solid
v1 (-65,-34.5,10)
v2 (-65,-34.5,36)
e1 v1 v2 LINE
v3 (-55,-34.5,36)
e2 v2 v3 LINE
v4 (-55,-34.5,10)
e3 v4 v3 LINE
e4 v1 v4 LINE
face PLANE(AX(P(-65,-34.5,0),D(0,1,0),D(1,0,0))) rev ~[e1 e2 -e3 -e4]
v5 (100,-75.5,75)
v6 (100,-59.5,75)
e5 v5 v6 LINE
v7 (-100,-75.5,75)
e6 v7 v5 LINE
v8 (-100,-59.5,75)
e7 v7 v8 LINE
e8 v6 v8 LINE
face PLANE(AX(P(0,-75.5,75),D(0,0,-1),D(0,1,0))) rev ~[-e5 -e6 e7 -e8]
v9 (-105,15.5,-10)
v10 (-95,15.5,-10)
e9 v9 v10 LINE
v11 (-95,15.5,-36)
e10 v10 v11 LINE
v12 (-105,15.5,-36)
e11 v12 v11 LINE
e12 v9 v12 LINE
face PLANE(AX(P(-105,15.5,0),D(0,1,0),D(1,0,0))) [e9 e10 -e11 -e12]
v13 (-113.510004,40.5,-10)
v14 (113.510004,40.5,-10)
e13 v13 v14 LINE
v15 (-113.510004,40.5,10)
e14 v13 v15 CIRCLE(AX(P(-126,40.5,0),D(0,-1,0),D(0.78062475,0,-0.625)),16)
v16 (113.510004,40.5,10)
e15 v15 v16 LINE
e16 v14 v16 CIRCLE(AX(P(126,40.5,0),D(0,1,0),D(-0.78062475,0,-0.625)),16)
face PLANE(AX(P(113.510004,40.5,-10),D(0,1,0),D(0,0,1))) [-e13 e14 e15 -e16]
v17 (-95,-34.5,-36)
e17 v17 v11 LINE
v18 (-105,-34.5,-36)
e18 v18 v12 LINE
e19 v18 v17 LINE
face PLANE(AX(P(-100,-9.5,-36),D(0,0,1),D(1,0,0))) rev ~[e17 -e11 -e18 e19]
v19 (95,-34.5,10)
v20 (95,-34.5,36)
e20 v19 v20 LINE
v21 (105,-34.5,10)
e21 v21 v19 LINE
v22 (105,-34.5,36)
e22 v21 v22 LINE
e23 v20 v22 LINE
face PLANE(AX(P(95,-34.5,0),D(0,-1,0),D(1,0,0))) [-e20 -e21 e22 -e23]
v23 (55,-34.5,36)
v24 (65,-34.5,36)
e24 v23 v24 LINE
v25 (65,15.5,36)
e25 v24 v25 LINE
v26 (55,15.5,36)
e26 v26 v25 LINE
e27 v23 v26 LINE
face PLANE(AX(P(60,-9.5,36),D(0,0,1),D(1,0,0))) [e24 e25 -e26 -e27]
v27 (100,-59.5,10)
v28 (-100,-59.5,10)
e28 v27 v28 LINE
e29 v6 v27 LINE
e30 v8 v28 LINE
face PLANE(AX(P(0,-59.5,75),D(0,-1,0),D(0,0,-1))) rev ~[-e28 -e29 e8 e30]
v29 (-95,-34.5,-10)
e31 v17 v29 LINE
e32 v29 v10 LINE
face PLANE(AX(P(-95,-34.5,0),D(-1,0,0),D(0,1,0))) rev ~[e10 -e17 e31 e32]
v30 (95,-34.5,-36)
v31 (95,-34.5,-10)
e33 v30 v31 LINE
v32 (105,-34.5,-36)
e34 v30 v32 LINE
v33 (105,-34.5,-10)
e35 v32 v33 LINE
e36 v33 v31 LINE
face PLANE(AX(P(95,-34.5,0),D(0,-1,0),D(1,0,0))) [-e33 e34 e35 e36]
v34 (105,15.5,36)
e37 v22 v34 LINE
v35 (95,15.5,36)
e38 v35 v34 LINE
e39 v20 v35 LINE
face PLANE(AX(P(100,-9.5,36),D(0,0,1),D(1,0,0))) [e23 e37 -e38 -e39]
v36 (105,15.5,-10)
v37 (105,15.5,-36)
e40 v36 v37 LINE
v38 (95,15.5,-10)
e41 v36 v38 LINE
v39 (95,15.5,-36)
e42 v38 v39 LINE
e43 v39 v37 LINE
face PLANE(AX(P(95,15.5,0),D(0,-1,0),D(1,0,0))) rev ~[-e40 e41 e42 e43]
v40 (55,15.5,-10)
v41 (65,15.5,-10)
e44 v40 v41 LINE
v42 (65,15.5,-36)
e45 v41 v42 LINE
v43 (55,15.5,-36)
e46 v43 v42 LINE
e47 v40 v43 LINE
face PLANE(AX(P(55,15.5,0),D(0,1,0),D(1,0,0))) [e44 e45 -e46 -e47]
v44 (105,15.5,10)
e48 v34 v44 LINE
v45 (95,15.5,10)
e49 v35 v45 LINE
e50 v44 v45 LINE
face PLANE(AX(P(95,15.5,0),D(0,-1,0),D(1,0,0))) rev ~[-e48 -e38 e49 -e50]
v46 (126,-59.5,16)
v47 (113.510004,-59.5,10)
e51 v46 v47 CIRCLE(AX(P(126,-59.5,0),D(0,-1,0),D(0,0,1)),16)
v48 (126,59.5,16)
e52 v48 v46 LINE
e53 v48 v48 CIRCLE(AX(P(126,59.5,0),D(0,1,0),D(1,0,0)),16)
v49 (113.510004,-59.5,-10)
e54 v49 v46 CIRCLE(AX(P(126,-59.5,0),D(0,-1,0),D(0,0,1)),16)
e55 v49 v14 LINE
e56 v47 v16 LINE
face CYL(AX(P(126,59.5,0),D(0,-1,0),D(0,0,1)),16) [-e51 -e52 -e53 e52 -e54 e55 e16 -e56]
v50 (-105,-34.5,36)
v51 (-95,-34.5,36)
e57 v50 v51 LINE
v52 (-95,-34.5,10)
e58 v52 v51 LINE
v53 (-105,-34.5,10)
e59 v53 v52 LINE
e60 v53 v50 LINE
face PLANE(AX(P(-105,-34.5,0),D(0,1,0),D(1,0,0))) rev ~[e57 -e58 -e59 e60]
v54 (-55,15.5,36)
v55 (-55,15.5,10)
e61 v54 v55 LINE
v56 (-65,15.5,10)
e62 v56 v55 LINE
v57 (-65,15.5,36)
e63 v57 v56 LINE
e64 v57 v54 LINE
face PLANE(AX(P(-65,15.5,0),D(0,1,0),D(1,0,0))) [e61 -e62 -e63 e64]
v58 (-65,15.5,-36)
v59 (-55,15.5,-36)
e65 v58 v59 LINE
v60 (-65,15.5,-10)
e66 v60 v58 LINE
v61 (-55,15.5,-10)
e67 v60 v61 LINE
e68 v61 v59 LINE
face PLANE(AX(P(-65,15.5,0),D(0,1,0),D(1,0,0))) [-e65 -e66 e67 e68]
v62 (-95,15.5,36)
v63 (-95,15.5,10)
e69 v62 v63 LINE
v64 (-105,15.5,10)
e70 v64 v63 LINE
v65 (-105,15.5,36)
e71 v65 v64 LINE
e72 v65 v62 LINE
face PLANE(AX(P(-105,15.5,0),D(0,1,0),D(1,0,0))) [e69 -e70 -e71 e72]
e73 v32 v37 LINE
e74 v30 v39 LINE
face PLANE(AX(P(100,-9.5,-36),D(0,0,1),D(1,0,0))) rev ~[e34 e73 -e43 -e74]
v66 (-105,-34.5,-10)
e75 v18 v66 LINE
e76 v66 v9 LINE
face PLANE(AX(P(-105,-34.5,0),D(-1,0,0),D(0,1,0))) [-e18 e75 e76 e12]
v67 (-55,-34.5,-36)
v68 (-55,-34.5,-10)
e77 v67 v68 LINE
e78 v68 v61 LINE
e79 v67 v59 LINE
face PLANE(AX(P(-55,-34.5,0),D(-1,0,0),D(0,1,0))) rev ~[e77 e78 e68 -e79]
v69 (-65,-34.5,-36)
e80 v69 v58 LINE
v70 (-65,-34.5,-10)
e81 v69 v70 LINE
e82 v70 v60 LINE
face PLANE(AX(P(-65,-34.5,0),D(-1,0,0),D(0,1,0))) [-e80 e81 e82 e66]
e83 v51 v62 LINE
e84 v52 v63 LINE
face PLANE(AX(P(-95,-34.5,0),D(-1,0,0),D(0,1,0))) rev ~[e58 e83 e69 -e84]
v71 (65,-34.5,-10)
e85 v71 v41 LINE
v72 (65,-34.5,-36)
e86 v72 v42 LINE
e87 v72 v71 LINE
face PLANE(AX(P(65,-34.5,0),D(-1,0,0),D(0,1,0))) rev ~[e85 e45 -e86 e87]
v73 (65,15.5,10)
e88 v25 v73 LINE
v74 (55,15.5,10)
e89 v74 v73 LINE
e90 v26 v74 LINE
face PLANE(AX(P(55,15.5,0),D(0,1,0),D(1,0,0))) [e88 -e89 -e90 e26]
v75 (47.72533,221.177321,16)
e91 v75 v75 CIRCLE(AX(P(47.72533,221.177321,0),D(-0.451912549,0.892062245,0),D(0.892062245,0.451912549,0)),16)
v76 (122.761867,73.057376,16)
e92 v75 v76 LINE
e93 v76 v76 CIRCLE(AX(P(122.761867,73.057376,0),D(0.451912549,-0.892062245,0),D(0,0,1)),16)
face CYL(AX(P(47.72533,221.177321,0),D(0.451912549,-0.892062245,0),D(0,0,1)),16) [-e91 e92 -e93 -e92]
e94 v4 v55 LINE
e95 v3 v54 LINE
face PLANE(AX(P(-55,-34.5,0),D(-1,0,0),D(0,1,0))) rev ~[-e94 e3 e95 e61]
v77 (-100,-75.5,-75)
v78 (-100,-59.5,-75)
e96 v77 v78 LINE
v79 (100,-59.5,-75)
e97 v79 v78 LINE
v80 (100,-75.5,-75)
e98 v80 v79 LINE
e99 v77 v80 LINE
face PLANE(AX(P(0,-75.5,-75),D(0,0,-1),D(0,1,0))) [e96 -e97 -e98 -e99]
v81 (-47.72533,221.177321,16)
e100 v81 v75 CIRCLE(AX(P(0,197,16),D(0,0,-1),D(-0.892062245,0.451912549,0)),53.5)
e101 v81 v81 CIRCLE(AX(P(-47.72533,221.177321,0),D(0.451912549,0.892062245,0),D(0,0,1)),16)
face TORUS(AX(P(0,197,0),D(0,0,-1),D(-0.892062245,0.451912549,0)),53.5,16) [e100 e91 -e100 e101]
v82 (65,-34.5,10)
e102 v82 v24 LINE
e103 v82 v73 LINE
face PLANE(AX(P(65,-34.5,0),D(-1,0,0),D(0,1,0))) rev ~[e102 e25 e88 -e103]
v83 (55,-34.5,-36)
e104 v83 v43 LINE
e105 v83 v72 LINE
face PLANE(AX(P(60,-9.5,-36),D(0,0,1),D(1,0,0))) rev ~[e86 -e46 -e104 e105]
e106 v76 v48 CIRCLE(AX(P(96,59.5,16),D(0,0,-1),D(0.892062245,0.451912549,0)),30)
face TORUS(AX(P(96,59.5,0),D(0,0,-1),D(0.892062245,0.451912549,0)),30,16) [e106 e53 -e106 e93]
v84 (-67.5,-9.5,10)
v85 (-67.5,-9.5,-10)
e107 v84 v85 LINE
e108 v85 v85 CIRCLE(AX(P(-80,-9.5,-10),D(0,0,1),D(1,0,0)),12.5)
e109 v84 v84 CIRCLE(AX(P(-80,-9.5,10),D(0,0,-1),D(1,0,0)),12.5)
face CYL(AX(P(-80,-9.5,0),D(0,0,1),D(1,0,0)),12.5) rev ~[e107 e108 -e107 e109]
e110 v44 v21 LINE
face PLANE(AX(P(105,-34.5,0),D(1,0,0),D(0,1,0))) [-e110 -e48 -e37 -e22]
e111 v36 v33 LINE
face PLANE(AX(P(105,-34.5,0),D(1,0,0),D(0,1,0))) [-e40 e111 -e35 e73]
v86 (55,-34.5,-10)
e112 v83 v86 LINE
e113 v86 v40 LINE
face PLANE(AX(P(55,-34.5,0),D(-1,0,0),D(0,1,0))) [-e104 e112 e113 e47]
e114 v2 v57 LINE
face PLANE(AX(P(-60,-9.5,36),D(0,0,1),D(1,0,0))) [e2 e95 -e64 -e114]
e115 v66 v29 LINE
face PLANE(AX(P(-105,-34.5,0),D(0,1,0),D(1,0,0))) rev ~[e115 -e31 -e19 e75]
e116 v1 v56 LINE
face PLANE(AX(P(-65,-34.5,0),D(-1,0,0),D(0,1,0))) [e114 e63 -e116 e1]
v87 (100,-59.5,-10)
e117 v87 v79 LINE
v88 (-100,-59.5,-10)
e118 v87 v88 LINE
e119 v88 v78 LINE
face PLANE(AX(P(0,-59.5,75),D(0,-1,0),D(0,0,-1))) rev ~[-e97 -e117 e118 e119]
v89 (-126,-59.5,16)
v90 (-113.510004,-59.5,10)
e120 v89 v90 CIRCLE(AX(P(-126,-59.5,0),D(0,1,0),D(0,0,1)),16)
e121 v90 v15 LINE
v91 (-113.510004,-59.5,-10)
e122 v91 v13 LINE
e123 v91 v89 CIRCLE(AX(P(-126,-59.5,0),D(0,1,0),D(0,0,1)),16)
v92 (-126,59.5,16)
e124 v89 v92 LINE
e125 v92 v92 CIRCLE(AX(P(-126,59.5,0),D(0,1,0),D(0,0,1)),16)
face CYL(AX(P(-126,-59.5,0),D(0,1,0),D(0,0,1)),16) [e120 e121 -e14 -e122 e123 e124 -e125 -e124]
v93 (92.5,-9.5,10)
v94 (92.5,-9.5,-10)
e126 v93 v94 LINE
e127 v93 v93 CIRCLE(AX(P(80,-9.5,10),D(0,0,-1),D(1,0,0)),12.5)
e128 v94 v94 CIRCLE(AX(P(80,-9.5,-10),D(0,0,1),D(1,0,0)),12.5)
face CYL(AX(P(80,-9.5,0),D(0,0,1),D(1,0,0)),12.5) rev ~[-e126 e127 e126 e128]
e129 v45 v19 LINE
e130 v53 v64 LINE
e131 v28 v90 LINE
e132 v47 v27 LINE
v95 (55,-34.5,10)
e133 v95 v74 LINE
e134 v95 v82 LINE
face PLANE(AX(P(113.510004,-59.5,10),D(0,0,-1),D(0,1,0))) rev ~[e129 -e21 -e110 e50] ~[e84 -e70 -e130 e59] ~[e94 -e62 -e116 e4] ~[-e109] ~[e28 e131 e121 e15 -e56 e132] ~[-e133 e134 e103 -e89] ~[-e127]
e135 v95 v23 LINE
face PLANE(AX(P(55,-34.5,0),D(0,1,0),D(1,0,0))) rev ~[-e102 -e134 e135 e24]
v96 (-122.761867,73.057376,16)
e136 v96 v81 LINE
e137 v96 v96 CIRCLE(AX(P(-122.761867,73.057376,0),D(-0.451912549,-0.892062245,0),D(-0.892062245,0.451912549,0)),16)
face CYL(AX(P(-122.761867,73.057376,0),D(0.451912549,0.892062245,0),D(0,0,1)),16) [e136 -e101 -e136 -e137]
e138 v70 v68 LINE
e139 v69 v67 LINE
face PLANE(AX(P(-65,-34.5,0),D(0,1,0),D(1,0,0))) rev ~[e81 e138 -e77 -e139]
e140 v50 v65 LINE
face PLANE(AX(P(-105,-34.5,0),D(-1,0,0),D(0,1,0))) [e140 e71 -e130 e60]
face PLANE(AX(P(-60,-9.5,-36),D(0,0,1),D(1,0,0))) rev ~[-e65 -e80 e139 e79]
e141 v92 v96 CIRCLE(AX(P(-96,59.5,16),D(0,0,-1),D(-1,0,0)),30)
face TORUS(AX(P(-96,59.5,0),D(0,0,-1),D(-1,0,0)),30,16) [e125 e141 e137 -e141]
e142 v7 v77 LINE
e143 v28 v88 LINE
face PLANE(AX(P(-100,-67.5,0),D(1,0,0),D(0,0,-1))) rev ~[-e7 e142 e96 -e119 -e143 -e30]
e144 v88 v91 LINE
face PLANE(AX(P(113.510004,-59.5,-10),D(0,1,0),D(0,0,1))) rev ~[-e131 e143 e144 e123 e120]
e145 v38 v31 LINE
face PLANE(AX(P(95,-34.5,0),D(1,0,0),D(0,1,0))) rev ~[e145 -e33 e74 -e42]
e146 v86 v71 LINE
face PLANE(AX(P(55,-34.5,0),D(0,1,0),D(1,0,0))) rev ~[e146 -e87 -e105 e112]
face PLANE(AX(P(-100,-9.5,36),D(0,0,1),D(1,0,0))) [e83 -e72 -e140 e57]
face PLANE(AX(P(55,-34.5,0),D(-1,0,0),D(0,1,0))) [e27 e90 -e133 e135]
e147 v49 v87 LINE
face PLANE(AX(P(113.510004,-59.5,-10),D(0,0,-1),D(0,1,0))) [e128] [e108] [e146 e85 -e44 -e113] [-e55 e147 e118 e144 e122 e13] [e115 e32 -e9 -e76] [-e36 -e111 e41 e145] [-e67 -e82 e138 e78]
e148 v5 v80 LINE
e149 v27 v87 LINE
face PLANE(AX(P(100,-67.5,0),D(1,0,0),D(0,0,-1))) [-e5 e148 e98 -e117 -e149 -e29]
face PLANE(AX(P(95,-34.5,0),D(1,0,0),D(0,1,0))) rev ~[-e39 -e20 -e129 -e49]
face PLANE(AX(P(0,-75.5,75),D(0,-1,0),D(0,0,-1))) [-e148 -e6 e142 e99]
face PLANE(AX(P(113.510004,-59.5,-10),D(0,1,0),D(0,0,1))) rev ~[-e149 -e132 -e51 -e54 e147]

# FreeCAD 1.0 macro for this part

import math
import FreeCAD as App
import Part
import Sketcher

V = App.Vector
Q = App.Units.Quantity


def add_polygon(sketch, points):
    """Adds a closed chain of lines whose ends are joined by coincident constraints."""
    first, n = sketch.GeometryCount, len(points)
    for a, b in zip(points, points[1:] + points[:1]):
        sketch.addGeometry(Part.LineSegment(App.Vector(*a, 0), App.Vector(*b, 0)), False)
    for i in range(n):
        sketch.addConstraint(Sketcher.Constraint("Coincident", first + i, 2, first + (i + 1) % n, 1))

doc = App.newDocument("Part")
body = doc.addObject("PartDesign::Body", "Body")

# Sketch on XZ plane
sketch1 = body.newObject("Sketcher::SketchObject", "Sketch")
sketch1.AttachmentSupport = (doc.getObject("XZ_Plane"), [""])
sketch1.MapMode = "FlatFace"
sketch1.AttachmentOffset = App.Placement(V(0, 0, 59.5), App.Rotation())
sketch1.addGeometry(Part.Circle(V(-126, 0, 0), V(0, 0, 1), 16), False)
sketch1.addConstraint([
    Sketcher.Constraint("PointOnObject", 0, 3, -1),
    Sketcher.Constraint("Diameter", 0, Q("32 mm")),
    Sketcher.Constraint("DistanceX", 0, 3, -1, 1, Q("126 mm")),
])

# Sketch on XY plane
sketch2 = body.newObject("Sketcher::SketchObject", "Sketch001")
sketch2.AttachmentSupport = (doc.getObject("XY_Plane"), [""])
sketch2.MapMode = "FlatFace"
sketch2.addGeometry([
    Part.LineSegment(V(-126, -60, 0), V(-126, 60, 0)),  # 0
    Part.ArcOfCircle(Part.Circle(V(-96, 60, 0), V(0, 0, 1), 30), math.radians(153), math.radians(180)),  # 1
    Part.LineSegment(V(-123, 73, 0), V(-48, 221, 0)),  # 2
    Part.ArcOfCircle(Part.Circle(V(0, 197, 0), V(0, 0, 1), 54), math.radians(27), math.radians(153)),  # 3
    Part.LineSegment(V(48, 221, 0), V(123, 73, 0)),  # 4
    Part.ArcOfCircle(Part.Circle(V(96, 60, 0), V(0, 0, 1), 30), math.radians(0), math.radians(27)),  # 5
    Part.LineSegment(V(126, 60, 0), V(126, -60, 0)),  # 6
], False)
sketch2.addConstraint([
    Sketcher.Constraint("Tangent", 0, 2, 1, 2),
    Sketcher.Constraint("Tangent", 1, 1, 2, 1),
    Sketcher.Constraint("Tangent", 2, 2, 3, 2),
    Sketcher.Constraint("Tangent", 3, 1, 4, 1),
    Sketcher.Constraint("Tangent", 4, 2, 5, 2),
    Sketcher.Constraint("Tangent", 5, 1, 6, 1),
    Sketcher.Constraint("Vertical", 0),
    Sketcher.Constraint("Vertical", 6),
    Sketcher.Constraint("Equal", 1, 5),
    Sketcher.Constraint("Symmetric", 0, 1, 5, 1, -1, 1),
    Sketcher.Constraint("Symmetric", 1, 1, 4, 2, -2),
    Sketcher.Constraint("Horizontal", 0, 1, 6, 2),
    Sketcher.Constraint("Radius", 1, Q("30 mm")),
    Sketcher.Constraint("Radius", 3, Q("53.5 mm")),
    Sketcher.Constraint("DistanceY", 0, 1, 0, 2, Q("119 mm")),
    Sketcher.Constraint("DistanceX", 1, 3, -1, 1, Q("96 mm")),
    Sketcher.Constraint("DistanceY", -1, 1, 3, 3, Q("197 mm")),
])
doc.recompute()

additivepipe = body.newObject("PartDesign::AdditivePipe", "AdditivePipe")
additivepipe.Profile = sketch1
additivepipe.Spine = (sketch2, ["Edge1", "Edge2", "Edge3", "Edge4", "Edge5", "Edge6", "Edge7"])
body2 = doc.addObject("PartDesign::Body", "Body001")

# Sketch on XY plane
sketch3 = body2.newObject("Sketcher::SketchObject", "Sketch002")
sketch3.AttachmentSupport = (doc.getObject("XY_Plane001"), [""])
sketch3.MapMode = "FlatFace"
add_polygon(sketch3, [(-110, 40), (-110, -60), (110, -60), (110, 40)])  # lines 0-3
sketch3.addConstraint([
    Sketcher.Constraint("Vertical", 0),
    Sketcher.Constraint("Horizontal", 1),
    Sketcher.Constraint("Vertical", 2),
    Sketcher.Constraint("Horizontal", 3),
    Sketcher.Constraint("DistanceX", 1, 1, 1, 2, Q("220 mm")),
    Sketcher.Constraint("DistanceY", 0, 2, 0, 1, Q("100 mm")),
    Sketcher.Constraint("DistanceX", 0, 2, -1, 1, Q("110 mm")),
    Sketcher.Constraint("DistanceY", 0, 2, -1, 1, Q("59.5 mm")),
])
pad1 = body2.newObject("PartDesign::Pad", "Pad")
pad1.Profile = sketch3
pad1.Length = 20
pad1.Midplane = True
body.AllowCompound = True
doc.recompute()

boolean = body.newObject("PartDesign::Boolean", "Boolean")
boolean.Type = "Fuse"
boolean.addObjects([body2])

# Sketch on YZ plane
sketch4 = body.newObject("Sketcher::SketchObject", "Sketch003")
sketch4.AttachmentSupport = (doc.getObject("YZ_Plane"), [""])
sketch4.MapMode = "FlatFace"
sketch4.AttachmentOffset = App.Placement(V(0, 0, 113.510004), App.Rotation())
add_polygon(sketch4, [(40, -10), (-60, -10), (-60, 10), (40, 10)])  # lines 0-3
sketch4.addConstraint([
    Sketcher.Constraint("Horizontal", 0),
    Sketcher.Constraint("Vertical", 1),
    Sketcher.Constraint("Horizontal", 2),
    Sketcher.Constraint("Vertical", 3),
    Sketcher.Constraint("DistanceX", 0, 2, 0, 1, Q("100 mm")),
    Sketcher.Constraint("DistanceY", 1, 1, 1, 2, Q("20 mm")),
    Sketcher.Constraint("DistanceY", 0, 2, -1, 1, Q("10 mm")),
    Sketcher.Constraint("DistanceX", 0, 2, -1, 1, Q("59.5 mm")),
])
pad2 = body.newObject("PartDesign::Pad", "Pad001")
pad2.Profile = sketch4
pad2.Length = 227.020008
pad2.Reversed = True

# Sketch on XY plane
sketch5 = body.newObject("Sketcher::SketchObject", "Sketch004")
sketch5.AttachmentSupport = (doc.getObject("XY_Plane"), [""])
sketch5.MapMode = "FlatFace"
sketch5.addGeometry([
    Part.Circle(V(80, -10, 0), V(0, 0, 1), 12),
    Part.Circle(V(-80, -10, 0), V(0, 0, 1), 12),
], False)
sketch5.addConstraint([
    Sketcher.Constraint("Equal", 0, 1),
    Sketcher.Constraint("Symmetric", 0, 3, 1, 3, -2),
    Sketcher.Constraint("Diameter", 0, Q("25 mm")),
    Sketcher.Constraint("DistanceX", -1, 1, 0, 3, Q("80 mm")),
    Sketcher.Constraint("DistanceY", 0, 3, -1, 1, Q("9.5 mm")),
])
pocket1 = body.newObject("PartDesign::Pocket", "Pocket")
pocket1.Profile = sketch5
pocket1.Type = "ThroughAll"
pocket1.Midplane = True

# Sketch on XY plane
sketch6 = body.newObject("Sketcher::SketchObject", "Sketch005")
sketch6.AttachmentSupport = (doc.getObject("XY_Plane"), [""])
sketch6.MapMode = "FlatFace"
add_polygon(sketch6, [(-105, 16), (-105, -34), (-95, -34), (-95, 16)])  # lines 0-3
add_polygon(sketch6, [(-65, 16), (-65, -34), (-55, -34), (-55, 16)])  # lines 4-7
add_polygon(sketch6, [(55, 16), (55, -34), (65, -34), (65, 16)])  # lines 8-11
add_polygon(sketch6, [(95, 16), (95, -34), (105, -34), (105, 16)])  # lines 12-15
sketch6.addConstraint([
    Sketcher.Constraint("Vertical", 0),
    Sketcher.Constraint("Horizontal", 1),
    Sketcher.Constraint("Vertical", 2),
    Sketcher.Constraint("Horizontal", 3),
    Sketcher.Constraint("Vertical", 4),
    Sketcher.Constraint("Horizontal", 5),
    Sketcher.Constraint("Vertical", 6),
    Sketcher.Constraint("Horizontal", 7),
    Sketcher.Constraint("Vertical", 8),
    Sketcher.Constraint("Horizontal", 9),
    Sketcher.Constraint("Vertical", 10),
    Sketcher.Constraint("Horizontal", 11),
    Sketcher.Constraint("Vertical", 12),
    Sketcher.Constraint("Horizontal", 13),
    Sketcher.Constraint("Vertical", 14),
    Sketcher.Constraint("Horizontal", 15),
    Sketcher.Constraint("Symmetric", 5, 2, 8, 2, -2),
    Sketcher.Constraint("Symmetric", 7, 2, 10, 2, -2),
    Sketcher.Constraint("Symmetric", 1, 2, 12, 2, -2),
    Sketcher.Constraint("Symmetric", 3, 2, 14, 2, -2),
    Sketcher.Constraint("Horizontal", 1, 2, 4, 2),
    Sketcher.Constraint("Horizontal", 3, 2, 6, 2),
    Sketcher.Constraint("Equal", 3, 5),
    Sketcher.Constraint("DistanceX", 1, 1, 1, 2, Q("10 mm")),
    Sketcher.Constraint("DistanceY", 0, 2, 0, 1, Q("50 mm")),
    Sketcher.Constraint("DistanceX", 0, 2, -1, 1, Q("105 mm")),
    Sketcher.Constraint("DistanceX", 4, 2, -1, 1, Q("65 mm")),
    Sketcher.Constraint("DistanceY", 0, 2, -1, 1, Q("34.5 mm")),
])
pad3 = body.newObject("PartDesign::Pad", "Pad002")
pad3.Profile = sketch6
pad3.Length = 72
pad3.Midplane = True

# Sketch on YZ plane
sketch7 = body.newObject("Sketcher::SketchObject", "Sketch006")
sketch7.AttachmentSupport = (doc.getObject("YZ_Plane"), [""])
sketch7.MapMode = "FlatFace"
add_polygon(sketch7, [(-60, 75), (-76, 75), (-76, -75), (-60, -75)])  # lines 0-3
sketch7.addConstraint([
    Sketcher.Constraint("Horizontal", 0),
    Sketcher.Constraint("Vertical", 1),
    Sketcher.Constraint("Horizontal", 2),
    Sketcher.Constraint("Vertical", 3),
    Sketcher.Constraint("DistanceX", 0, 2, 0, 1, Q("16 mm")),
    Sketcher.Constraint("DistanceY", 1, 2, 1, 1, Q("150 mm")),
    Sketcher.Constraint("DistanceY", -1, 1, 0, 2, Q("75 mm")),
    Sketcher.Constraint("DistanceX", 0, 2, -1, 1, Q("75.5 mm")),
])
pad4 = body.newObject("PartDesign::Pad", "Pad003")
pad4.Profile = sketch7
pad4.Length = 200
pad4.Midplane = True

doc.recompute()
